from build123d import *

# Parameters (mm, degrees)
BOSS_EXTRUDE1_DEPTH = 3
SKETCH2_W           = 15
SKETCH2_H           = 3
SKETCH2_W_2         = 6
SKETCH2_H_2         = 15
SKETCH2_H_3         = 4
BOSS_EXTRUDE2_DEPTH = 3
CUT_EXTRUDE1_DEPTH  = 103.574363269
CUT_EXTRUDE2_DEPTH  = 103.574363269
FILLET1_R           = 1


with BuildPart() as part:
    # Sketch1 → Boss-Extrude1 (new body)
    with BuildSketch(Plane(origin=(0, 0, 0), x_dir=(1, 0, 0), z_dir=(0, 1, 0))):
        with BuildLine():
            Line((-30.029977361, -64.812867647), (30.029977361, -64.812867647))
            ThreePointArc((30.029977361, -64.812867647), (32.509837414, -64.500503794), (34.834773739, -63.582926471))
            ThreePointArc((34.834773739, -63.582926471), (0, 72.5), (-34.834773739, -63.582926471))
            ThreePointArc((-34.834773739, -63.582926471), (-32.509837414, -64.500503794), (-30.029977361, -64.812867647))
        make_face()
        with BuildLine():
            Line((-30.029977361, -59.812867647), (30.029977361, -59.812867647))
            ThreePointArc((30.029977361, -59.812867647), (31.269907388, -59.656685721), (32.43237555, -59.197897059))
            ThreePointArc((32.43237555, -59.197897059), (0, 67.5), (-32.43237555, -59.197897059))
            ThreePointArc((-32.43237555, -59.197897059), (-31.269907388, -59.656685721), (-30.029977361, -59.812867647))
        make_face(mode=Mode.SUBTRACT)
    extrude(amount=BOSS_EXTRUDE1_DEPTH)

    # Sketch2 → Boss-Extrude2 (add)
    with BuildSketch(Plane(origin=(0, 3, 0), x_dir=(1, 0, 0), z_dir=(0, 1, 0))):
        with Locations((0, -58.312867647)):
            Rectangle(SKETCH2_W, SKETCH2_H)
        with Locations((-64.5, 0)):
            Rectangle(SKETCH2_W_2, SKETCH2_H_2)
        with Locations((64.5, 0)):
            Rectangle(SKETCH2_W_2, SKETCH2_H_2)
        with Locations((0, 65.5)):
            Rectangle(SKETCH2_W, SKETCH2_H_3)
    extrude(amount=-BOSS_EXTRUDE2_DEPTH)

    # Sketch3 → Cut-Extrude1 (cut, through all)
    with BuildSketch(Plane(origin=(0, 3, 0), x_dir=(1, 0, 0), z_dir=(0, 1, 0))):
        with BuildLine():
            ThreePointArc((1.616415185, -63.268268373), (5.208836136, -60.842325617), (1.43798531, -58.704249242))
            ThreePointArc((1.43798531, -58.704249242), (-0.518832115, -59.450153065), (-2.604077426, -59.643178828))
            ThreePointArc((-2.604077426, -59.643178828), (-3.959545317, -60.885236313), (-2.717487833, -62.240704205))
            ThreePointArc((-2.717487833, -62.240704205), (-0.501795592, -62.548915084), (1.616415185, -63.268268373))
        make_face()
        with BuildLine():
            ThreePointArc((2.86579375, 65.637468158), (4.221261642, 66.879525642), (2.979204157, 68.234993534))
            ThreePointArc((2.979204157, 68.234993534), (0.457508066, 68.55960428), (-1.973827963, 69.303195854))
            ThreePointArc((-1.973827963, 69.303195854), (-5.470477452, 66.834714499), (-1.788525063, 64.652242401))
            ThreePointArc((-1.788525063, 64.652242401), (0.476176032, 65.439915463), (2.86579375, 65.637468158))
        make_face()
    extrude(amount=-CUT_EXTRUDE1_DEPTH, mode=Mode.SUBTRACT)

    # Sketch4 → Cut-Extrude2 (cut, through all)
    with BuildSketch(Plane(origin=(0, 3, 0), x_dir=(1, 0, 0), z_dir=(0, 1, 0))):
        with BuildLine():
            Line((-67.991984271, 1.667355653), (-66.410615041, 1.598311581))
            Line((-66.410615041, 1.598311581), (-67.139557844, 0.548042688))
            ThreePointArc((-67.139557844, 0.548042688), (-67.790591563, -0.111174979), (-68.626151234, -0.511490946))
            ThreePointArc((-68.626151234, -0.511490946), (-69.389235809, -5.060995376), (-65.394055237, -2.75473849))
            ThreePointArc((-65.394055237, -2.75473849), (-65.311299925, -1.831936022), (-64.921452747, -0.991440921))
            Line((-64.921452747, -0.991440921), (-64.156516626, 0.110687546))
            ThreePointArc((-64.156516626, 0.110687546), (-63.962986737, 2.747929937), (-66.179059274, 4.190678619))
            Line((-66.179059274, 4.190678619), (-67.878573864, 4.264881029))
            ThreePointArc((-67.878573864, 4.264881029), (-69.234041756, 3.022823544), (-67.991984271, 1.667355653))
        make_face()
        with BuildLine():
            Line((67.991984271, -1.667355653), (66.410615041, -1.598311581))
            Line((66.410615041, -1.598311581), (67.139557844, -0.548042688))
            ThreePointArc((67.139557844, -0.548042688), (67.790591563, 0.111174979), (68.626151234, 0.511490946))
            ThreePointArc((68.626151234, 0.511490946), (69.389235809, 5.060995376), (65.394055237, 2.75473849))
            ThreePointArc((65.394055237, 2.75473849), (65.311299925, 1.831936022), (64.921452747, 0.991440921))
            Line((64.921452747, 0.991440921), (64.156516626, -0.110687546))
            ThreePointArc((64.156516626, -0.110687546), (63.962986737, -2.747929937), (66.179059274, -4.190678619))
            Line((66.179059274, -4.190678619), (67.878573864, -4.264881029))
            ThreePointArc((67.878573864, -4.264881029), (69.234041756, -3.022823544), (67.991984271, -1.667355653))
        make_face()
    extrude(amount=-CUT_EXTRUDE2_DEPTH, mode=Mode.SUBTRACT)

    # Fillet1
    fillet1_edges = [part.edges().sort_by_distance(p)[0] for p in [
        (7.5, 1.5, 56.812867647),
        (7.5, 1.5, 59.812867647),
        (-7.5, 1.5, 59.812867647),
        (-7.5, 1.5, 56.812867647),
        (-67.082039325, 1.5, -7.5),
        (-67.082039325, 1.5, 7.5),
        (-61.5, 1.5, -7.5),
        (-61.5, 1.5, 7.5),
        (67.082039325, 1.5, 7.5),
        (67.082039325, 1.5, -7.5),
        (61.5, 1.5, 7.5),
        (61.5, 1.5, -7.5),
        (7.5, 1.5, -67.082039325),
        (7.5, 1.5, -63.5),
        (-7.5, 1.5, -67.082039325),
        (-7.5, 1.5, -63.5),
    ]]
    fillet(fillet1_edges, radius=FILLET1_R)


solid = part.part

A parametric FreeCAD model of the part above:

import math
import FreeCAD as App
import Part
import Sketcher
from FreeCAD import Vector
Q = App.Units.Quantity


def edges_at(feature, points):
    """Names of the edges that pass closest to the given points."""
    edges = feature.Shape.Edges
    near = lambda p: min(range(len(edges)), key=lambda i: edges[i].distToShape(Part.Vertex(*p))[0])
    return sorted({f"Edge{near(p) + 1}" for p in points})

doc = App.newDocument("Part")
body = doc.addObject("PartDesign::Body", "Body")

sketch1 = body.newObject("Sketcher::SketchObject", "Sketch")
sketch1.AttachmentSupport = (doc.getObject("XZ_Plane"), [""])
sketch1.MapMode = "FlatFace"
sketch1.addGeometry(Part.LineSegment(Vector(-30, 64.8, 0), Vector(30, 64.8, 0)), False)
sketch1.addGeometry(Part.ArcOfCircle(Part.Circle(Vector(30, 54.8, 0), Vector(0, 0, 1), 10), math.radians(61), math.radians(90)), False)
sketch1.addGeometry(Part.ArcOfCircle(Part.Circle(Vector(0, 0, 0), Vector(0, 0, 1), 72.5), math.radians(119), math.radians(421)), False)
sketch1.addGeometry(Part.ArcOfCircle(Part.Circle(Vector(-30, 54.8, 0), Vector(0, 0, 1), 10), math.radians(90), math.radians(119)), False)
sketch1.addGeometry(Part.LineSegment(Vector(30, 59.8, 0), Vector(-30, 59.8, 0)), False)
sketch1.addGeometry(Part.ArcOfCircle(Part.Circle(Vector(-30, 54.8, 0), Vector(0, 0, 1), 5), math.radians(90), math.radians(119)), False)
sketch1.addGeometry(Part.ArcOfCircle(Part.Circle(Vector(0, 0, 0), Vector(0, 0, 1), 67.5), math.radians(119), math.radians(421)), False)
sketch1.addGeometry(Part.ArcOfCircle(Part.Circle(Vector(30, 54.8, 0), Vector(0, 0, 1), 5), math.radians(61), math.radians(90)), False)
sketch1.addConstraint(Sketcher.Constraint("Tangent", 0, 2, 1, 2))
sketch1.addConstraint(Sketcher.Constraint("Tangent", 1, 1, 2, 2))
sketch1.addConstraint(Sketcher.Constraint("Tangent", 2, 1, 3, 2))
sketch1.addConstraint(Sketcher.Constraint("Tangent", 3, 1, 0, 1))
sketch1.addConstraint(Sketcher.Constraint("Tangent", 4, 2, 5, 1))
sketch1.addConstraint(Sketcher.Constraint("Tangent", 5, 2, 6, 1))
sketch1.addConstraint(Sketcher.Constraint("Tangent", 6, 2, 7, 1))
sketch1.addConstraint(Sketcher.Constraint("Tangent", 7, 2, 4, 1))
sketch1.addConstraint(Sketcher.Constraint("Horizontal", 0))
sketch1.addConstraint(Sketcher.Constraint("Horizontal", 4))
sketch1.addConstraint(Sketcher.Constraint("Coincident", 2, 3, -1, 1))
sketch1.addConstraint(Sketcher.Constraint("Coincident", 6, 3, -1, 1))
sketch1.addConstraint(Sketcher.Constraint("Coincident", 5, 3, 3, 3))
sketch1.addConstraint(Sketcher.Constraint("Equal", 1, 3))
sketch1.addConstraint(Sketcher.Constraint("Equal", 5, 7))
sketch1.addConstraint(Sketcher.Constraint("Radius", 1, 10.0))
sketch1.addConstraint(Sketcher.Constraint("Radius", 5, 5.0))
sketch1.addConstraint(Sketcher.Constraint("Radius", 2, 72.5))
sketch1.addConstraint(Sketcher.Constraint("DistanceX", 5, 2, 4, 2, 2.402398))
pad1 = body.newObject("PartDesign::Pad", "Pad")
pad1.Profile = sketch1
pad1.Length = 3
pad1.Reversed = True

sketch2 = body.newObject("Sketcher::SketchObject", "Sketch001")
sketch2.AttachmentSupport = (doc.getObject("XZ_Plane"), [""])
sketch2.MapMode = "FlatFace"
sketch2.AttachmentOffset = App.Placement(Vector(0, 0, -3), App.Rotation())
sketch2.addGeometry(Part.LineSegment(Vector(-7.5, 56.8, 0), Vector(-7.5, 59.8, 0)), False)
sketch2.addGeometry(Part.LineSegment(Vector(-7.5, 59.8, 0), Vector(7.5, 59.8, 0)), False)
sketch2.addGeometry(Part.LineSegment(Vector(7.5, 59.8, 0), Vector(7.5, 56.8, 0)), False)
sketch2.addGeometry(Part.LineSegment(Vector(7.5, 56.8, 0), Vector(-7.5, 56.8, 0)), False)
sketch2.addGeometry(Part.LineSegment(Vector(-67.5, -7.5, 0), Vector(-67.5, 7.5, 0)), False)
sketch2.addGeometry(Part.LineSegment(Vector(-67.5, 7.5, 0), Vector(-61.5, 7.5, 0)), False)
sketch2.addGeometry(Part.LineSegment(Vector(-61.5, 7.5, 0), Vector(-61.5, -7.5, 0)), False)
sketch2.addGeometry(Part.LineSegment(Vector(-61.5, -7.5, 0), Vector(-67.5, -7.5, 0)), False)
sketch2.addGeometry(Part.LineSegment(Vector(61.5, -7.5, 0), Vector(61.5, 7.5, 0)), False)
sketch2.addGeometry(Part.LineSegment(Vector(61.5, 7.5, 0), Vector(67.5, 7.5, 0)), False)
sketch2.addGeometry(Part.LineSegment(Vector(67.5, 7.5, 0), Vector(67.5, -7.5, 0)), False)
sketch2.addGeometry(Part.LineSegment(Vector(67.5, -7.5, 0), Vector(61.5, -7.5, 0)), False)
sketch2.addGeometry(Part.LineSegment(Vector(-7.5, -67.5, 0), Vector(-7.5, -63.5, 0)), False)
sketch2.addGeometry(Part.LineSegment(Vector(-7.5, -63.5, 0), Vector(7.5, -63.5, 0)), False)
sketch2.addGeometry(Part.LineSegment(Vector(7.5, -63.5, 0), Vector(7.5, -67.5, 0)), False)
sketch2.addGeometry(Part.LineSegment(Vector(7.5, -67.5, 0), Vector(-7.5, -67.5, 0)), False)
sketch2.addConstraint(Sketcher.Constraint("Coincident", 0, 2, 1, 1))
sketch2.addConstraint(Sketcher.Constraint("Coincident", 1, 2, 2, 1))
sketch2.addConstraint(Sketcher.Constraint("Coincident", 2, 2, 3, 1))
sketch2.addConstraint(Sketcher.Constraint("Coincident", 3, 2, 0, 1))
sketch2.addConstraint(Sketcher.Constraint("Coincident", 4, 2, 5, 1))
sketch2.addConstraint(Sketcher.Constraint("Coincident", 5, 2, 6, 1))
sketch2.addConstraint(Sketcher.Constraint("Coincident", 6, 2, 7, 1))
sketch2.addConstraint(Sketcher.Constraint("Coincident", 7, 2, 4, 1))
sketch2.addConstraint(Sketcher.Constraint("Coincident", 8, 2, 9, 1))
sketch2.addConstraint(Sketcher.Constraint("Coincident", 9, 2, 10, 1))
sketch2.addConstraint(Sketcher.Constraint("Coincident", 10, 2, 11, 1))
sketch2.addConstraint(Sketcher.Constraint("Coincident", 11, 2, 8, 1))
sketch2.addConstraint(Sketcher.Constraint("Coincident", 12, 2, 13, 1))
sketch2.addConstraint(Sketcher.Constraint("Coincident", 13, 2, 14, 1))
sketch2.addConstraint(Sketcher.Constraint("Coincident", 14, 2, 15, 1))
sketch2.addConstraint(Sketcher.Constraint("Coincident", 15, 2, 12, 1))
sketch2.addConstraint(Sketcher.Constraint("Vertical", 0))
sketch2.addConstraint(Sketcher.Constraint("Horizontal", 1))
sketch2.addConstraint(Sketcher.Constraint("Vertical", 2))
sketch2.addConstraint(Sketcher.Constraint("Horizontal", 3))
sketch2.addConstraint(Sketcher.Constraint("Vertical", 4))
sketch2.addConstraint(Sketcher.Constraint("Horizontal", 5))
sketch2.addConstraint(Sketcher.Constraint("Vertical", 6))
sketch2.addConstraint(Sketcher.Constraint("Horizontal", 7))
sketch2.addConstraint(Sketcher.Constraint("Vertical", 8))
sketch2.addConstraint(Sketcher.Constraint("Horizontal", 9))
sketch2.addConstraint(Sketcher.Constraint("Vertical", 10))
sketch2.addConstraint(Sketcher.Constraint("Horizontal", 11))
sketch2.addConstraint(Sketcher.Constraint("Vertical", 12))
sketch2.addConstraint(Sketcher.Constraint("Horizontal", 13))
sketch2.addConstraint(Sketcher.Constraint("Vertical", 14))
sketch2.addConstraint(Sketcher.Constraint("Horizontal", 15))
sketch2.addConstraint(Sketcher.Constraint("Symmetric", 6, 2, 8, 2, -1, 1))
sketch2.addConstraint(Sketcher.Constraint("Symmetric", 4, 2, 10, 2, -1, 1))
sketch2.addConstraint(Sketcher.Constraint("Horizontal", 5, 2, 8, 2))
sketch2.addConstraint(Sketcher.Constraint("Vertical", 3, 2, 12, 2))
sketch2.addConstraint(Sketcher.Constraint("Vertical", 2, 2, 13, 2))
sketch2.addConstraint(Sketcher.Constraint("Equal", 15, 4))
sketch2.addConstraint(Sketcher.Constraint("DistanceX", 1, 1, 1, 2, 15.0))
sketch2.addConstraint(Sketcher.Constraint("DistanceX", 5, 1, 5, 2, 6.0))
sketch2.addConstraint(Sketcher.Constraint("DistanceY", 0, 1, 0, 2, 3.0))
sketch2.addConstraint(Sketcher.Constraint("DistanceY", 12, 1, 12, 2, 4.0))
sketch2.addConstraint(Sketcher.Constraint("DistanceX", 4, 2, 3, 2, 60.0))
sketch2.addConstraint(Sketcher.Constraint("DistanceX", 2, 2, 8, 2, 54.0))
sketch2.addConstraint(Sketcher.Constraint("DistanceY", 12, 2, 6, 2, 56.0))
sketch2.addConstraint(Sketcher.Constraint("DistanceY", -1, 1, 0, 2, 59.812868))
pad2 = body.newObject("PartDesign::Pad", "Pad001")
pad2.Profile = sketch2
pad2.Length = 3

sketch3 = body.newObject("Sketcher::SketchObject", "Sketch002")
sketch3.AttachmentSupport = (doc.getObject("XZ_Plane"), [""])
sketch3.MapMode = "FlatFace"
sketch3.AttachmentOffset = App.Placement(Vector(0, 0, -3), App.Rotation())
sketch3.addGeometry(Part.ArcOfCircle(Part.Circle(Vector(2.7, 60.9, 0), Vector(0, 0, 1), 2.5), math.radians(-119), math.radians(114)), False)
sketch3.addGeometry(Part.ArcOfCircle(Part.Circle(Vector(-2.3, 51.9, 0), Vector(0, 0, 1), 7.7), math.radians(61), math.radians(92)), False)
sketch3.addGeometry(Part.ArcOfCircle(Part.Circle(Vector(-2.7, 60.9, 0), Vector(0, 0, 1), 1.3), math.radians(93), math.radians(272)), False)
sketch3.addGeometry(Part.ArcOfCircle(Part.Circle(Vector(-3.2, 74.1, 0), Vector(0, 0, 1), 11.8), math.radians(-88), math.radians(-66)), False)
sketch3.addGeometry(Part.ArcOfCircle(Part.Circle(Vector(2.9, -66.9, 0), Vector(0, 0, 1), 1.3), math.radians(-88), math.radians(93)), False)
sketch3.addGeometry(Part.ArcOfCircle(Part.Circle(Vector(3.6, -83.3, 0), Vector(0, 0, 1), 15.1), math.radians(92.5), math.radians(111.84)), False)
sketch3.addGeometry(Part.ArcOfCircle(Part.Circle(Vector(-2.9, -66.9, 0), Vector(0, 0, 1), 2.5), math.radians(64), math.radians(292)), False)
sketch3.addGeometry(Part.ArcOfCircle(Part.Circle(Vector(2.5, -56.1, 0), Vector(0, 0, 1), 9.5), math.radians(-116), math.radians(-87)), False)
sketch3.addConstraint(Sketcher.Constraint("Tangent", 0, 1, 1, 1))
sketch3.addConstraint(Sketcher.Constraint("Tangent", 1, 2, 2, 2))
sketch3.addConstraint(Sketcher.Constraint("Tangent", 2, 1, 3, 1))
sketch3.addConstraint(Sketcher.Constraint("Tangent", 3, 2, 0, 2))
sketch3.addConstraint(Sketcher.Constraint("Tangent", 4, 1, 5, 1))
sketch3.addConstraint(Sketcher.Constraint("Tangent", 5, 2, 6, 2))
sketch3.addConstraint(Sketcher.Constraint("Tangent", 6, 1, 7, 1))
sketch3.addConstraint(Sketcher.Constraint("Tangent", 7, 2, 4, 2))
sketch3.addConstraint(Sketcher.Constraint("Equal", 2, 4))
sketch3.addConstraint(Sketcher.Constraint("Equal", 0, 6))
sketch3.addConstraint(Sketcher.Constraint("Symmetric", 0, 3, 2, 3, -2))
sketch3.addConstraint(Sketcher.Constraint("Symmetric", 4, 3, 6, 3, -2))
sketch3.addConstraint(Sketcher.Constraint("Radius", 2, 1.3))
sketch3.addConstraint(Sketcher.Constraint("Radius", 0, 2.55))
sketch3.addConstraint(Sketcher.Constraint("Radius", 3, 11.843321))
sketch3.addConstraint(Sketcher.Constraint("Radius", 1, 7.726427))
sketch3.addConstraint(Sketcher.Constraint("Radius", 5, 15.081926))
sketch3.addConstraint(Sketcher.Constraint("Radius", 7, 9.531386))
sketch3.addConstraint(Sketcher.Constraint("DistanceX", -1, 1, 4, 3, 2.922499))
sketch3.addConstraint(Sketcher.Constraint("DistanceY", 1, 3, 2, 1, 10.316598))
sketch3.addConstraint(Sketcher.Constraint("DistanceY", 4, 1, 1, 3, 120.159099))
sketch3.addConstraint(Sketcher.Constraint("DistanceY", -1, 1, 0, 3, 60.941942))
pocket1 = body.newObject("PartDesign::Pocket", "Pocket")
pocket1.Profile = sketch3
pocket1.Type = "ThroughAll"
pocket1.Reversed = True

sketch4 = body.newObject("Sketcher::SketchObject", "Sketch003")
sketch4.AttachmentSupport = (doc.getObject("XZ_Plane"), [""])
sketch4.MapMode = "FlatFace"
sketch4.AttachmentOffset = App.Placement(Vector(0, 0, -3), App.Rotation())
sketch4.addGeometry(Part.LineSegment(Vector(-68, -1.7, 0), Vector(-66.4, -1.6, 0)), False)
sketch4.addGeometry(Part.LineSegment(Vector(-66.4, -1.6, 0), Vector(-67.1, -0.5, 0)), False)
sketch4.addGeometry(Part.ArcOfCircle(Part.Circle(Vector(-69.4, -2.1, 0), Vector(0, 0, 1), 2.7), math.radians(35), math.radians(74)), False)
sketch4.addGeometry(Part.ArcOfCircle(Part.Circle(Vector(-67.9, 3, 0), Vector(0, 0, 1), 2.5), math.radians(-5), math.radians(254)), False)
sketch4.addGeometry(Part.ArcOfCircle(Part.Circle(Vector(-62.7, 2.5, 0), Vector(0, 0, 1), 2.7), math.radians(175), math.radians(215)), False)
sketch4.addGeometry(Part.LineSegment(Vector(-64.9, 1, 0), Vector(-64.2, -0.1, 0)), False)
sketch4.addGeometry(Part.ArcOfCircle(Part.Circle(Vector(-66.3, -1.6, 0), Vector(0, 0, 1), 2.6), math.radians(-88), math.radians(35)), False)
sketch4.addGeometry(Part.LineSegment(Vector(-66.2, -4.2, 0), Vector(-67.9, -4.3, 0)), False)
sketch4.addGeometry(Part.ArcOfCircle(Part.Circle(Vector(-67.9, -3, 0), Vector(0, 0, 1), 1.3), math.radians(92), math.radians(273)), False)
sketch4.addGeometry(Part.LineSegment(Vector(68, 1.7, 0), Vector(66.4, 1.6, 0)), False)
sketch4.addGeometry(Part.LineSegment(Vector(66.4, 1.6, 0), Vector(67.1, 0.5, 0)), False)
sketch4.addGeometry(Part.ArcOfCircle(Part.Circle(Vector(69.4, 2.1, 0), Vector(0, 0, 1), 2.7), math.radians(-145), math.radians(-106)), False)
sketch4.addGeometry(Part.ArcOfCircle(Part.Circle(Vector(67.9, -3, 0), Vector(0, 0, 1), 2.5), math.radians(175), math.radians(434)), False)
sketch4.addGeometry(Part.ArcOfCircle(Part.Circle(Vector(62.7, -2.5, 0), Vector(0, 0, 1), 2.7), math.radians(-5), math.radians(35)), False)
sketch4.addGeometry(Part.LineSegment(Vector(64.9, -1, 0), Vector(64.2, 0.1, 0)), False)
sketch4.addGeometry(Part.ArcOfCircle(Part.Circle(Vector(66.3, 1.6, 0), Vector(0, 0, 1), 2.6), math.radians(92), math.radians(215)), False)
sketch4.addGeometry(Part.LineSegment(Vector(66.2, 4.2, 0), Vector(67.9, 4.3, 0)), False)
sketch4.addGeometry(Part.ArcOfCircle(Part.Circle(Vector(67.9, 3, 0), Vector(0, 0, 1), 1.3), math.radians(-88), math.radians(93)), False)
sketch4.addConstraint(Sketcher.Constraint("Coincident", 0, 2, 1, 1))
sketch4.addConstraint(Sketcher.Constraint("Tangent", 1, 2, 2, 1))
sketch4.addConstraint(Sketcher.Constraint("Tangent", 2, 2, 3, 2))
sketch4.addConstraint(Sketcher.Constraint("Tangent", 3, 1, 4, 1))
sketch4.addConstraint(Sketcher.Constraint("Tangent", 4, 2, 5, 1))
sketch4.addConstraint(Sketcher.Constraint("Tangent", 5, 2, 6, 2))
sketch4.addConstraint(Sketcher.Constraint("Tangent", 6, 1, 7, 1))
sketch4.addConstraint(Sketcher.Constraint("Tangent", 7, 2, 8, 2))
sketch4.addConstraint(Sketcher.Constraint("Tangent", 8, 1, 0, 1))
sketch4.addConstraint(Sketcher.Constraint("Coincident", 9, 2, 10, 1))
sketch4.addConstraint(Sketcher.Constraint("Tangent", 10, 2, 11, 1))
sketch4.addConstraint(Sketcher.Constraint("Tangent", 11, 2, 12, 2))
sketch4.addConstraint(Sketcher.Constraint("Tangent", 12, 1, 13, 1))
sketch4.addConstraint(Sketcher.Constraint("Tangent", 13, 2, 14, 1))
sketch4.addConstraint(Sketcher.Constraint("Tangent", 14, 2, 15, 2))
sketch4.addConstraint(Sketcher.Constraint("Tangent", 15, 1, 16, 1))
sketch4.addConstraint(Sketcher.Constraint("Tangent", 16, 2, 17, 2))
sketch4.addConstraint(Sketcher.Constraint("Tangent", 17, 1, 9, 1))
sketch4.addConstraint(Sketcher.Constraint("Equal", 2, 4))
sketch4.addConstraint(Sketcher.Constraint("Equal", 4, 11))
sketch4.addConstraint(Sketcher.Constraint("Equal", 3, 12))
sketch4.addConstraint(Sketcher.Constraint("Equal", 11, 13))
sketch4.addConstraint(Sketcher.Constraint("Equal", 6, 15))
sketch4.addConstraint(Sketcher.Constraint("Equal", 8, 17))
sketch4.addConstraint(Sketcher.Constraint("Symmetric", 2, 3, 11, 3, -1, 1))
sketch4.addConstraint(Sketcher.Constraint("Symmetric", 4, 3, 13, 3, -1, 1))
sketch4.addConstraint(Sketcher.Constraint("Symmetric", 6, 3, 15, 3, -1, 1))
sketch4.addConstraint(Sketcher.Constraint("Symmetric", 8, 3, 17, 3, -1, 1))
sketch4.addConstraint(Sketcher.Constraint("Symmetric", 0, 2, 9, 2, -1, 1))
sketch4.addConstraint(Sketcher.Constraint("Symmetric", 8, 3, 12, 3, -2))
sketch4.addConstraint(Sketcher.Constraint("Parallel", 1, 5))
sketch4.addConstraint(Sketcher.Constraint("Parallel", 0, 7))
sketch4.addConstraint(Sketcher.Constraint("Radius", 2, 2.7))
sketch4.addConstraint(Sketcher.Constraint("Radius", 6, 2.6))
sketch4.addConstraint(Sketcher.Constraint("Radius", 8, 1.3))
sketch4.addConstraint(Sketcher.Constraint("Radius", 3, 2.55))
sketch4.addConstraint(Sketcher.Constraint("Angle", 0, Q("2.5 deg")))
sketch4.addConstraint(Sketcher.Constraint("DistanceY", 11, 3, 4, 3, 0.443398))
sketch4.addConstraint(Sketcher.Constraint("DistanceX", 0, 2, 5, 2, 2.254098))
sketch4.addConstraint(Sketcher.Constraint("DistanceX", 1, 2, 6, 1, 0.960499))
sketch4.addConstraint(Sketcher.Constraint("Distance", 5, 1.341572))
sketch4.addConstraint(Sketcher.Constraint("DistanceX", 3, 3, -1, 1, 67.935279))
pocket2 = body.newObject("PartDesign::Pocket", "Pocket001")
pocket2.Profile = sketch4
pocket2.Type = "ThroughAll"
pocket2.Reversed = True
doc.recompute()

fillet = body.newObject("PartDesign::Fillet", "Fillet")
fillet.Base = (pocket2, edges_at(pocket2, [
    (7.5, 1.5, 56.813),
    (7.5, 1.5, 59.813),
    (-7.5, 1.5, 59.813),
    (-7.5, 1.5, 56.813),
    (-67.082, 1.5, -7.5),
    (-67.082, 1.5, 7.5),
    (-61.5, 1.5, -7.5),
    (-61.5, 1.5, 7.5),
    (67.082, 1.5, 7.5),
    (67.082, 1.5, -7.5),
    (61.5, 1.5, 7.5),
    (61.5, 1.5, -7.5),
    (7.5, 1.5, -67.082),
    (7.5, 1.5, -63.5),
    (-7.5, 1.5, -67.082),
    (-7.5, 1.5, -63.5),
]))
fillet.Radius = 1

doc.recompute()
